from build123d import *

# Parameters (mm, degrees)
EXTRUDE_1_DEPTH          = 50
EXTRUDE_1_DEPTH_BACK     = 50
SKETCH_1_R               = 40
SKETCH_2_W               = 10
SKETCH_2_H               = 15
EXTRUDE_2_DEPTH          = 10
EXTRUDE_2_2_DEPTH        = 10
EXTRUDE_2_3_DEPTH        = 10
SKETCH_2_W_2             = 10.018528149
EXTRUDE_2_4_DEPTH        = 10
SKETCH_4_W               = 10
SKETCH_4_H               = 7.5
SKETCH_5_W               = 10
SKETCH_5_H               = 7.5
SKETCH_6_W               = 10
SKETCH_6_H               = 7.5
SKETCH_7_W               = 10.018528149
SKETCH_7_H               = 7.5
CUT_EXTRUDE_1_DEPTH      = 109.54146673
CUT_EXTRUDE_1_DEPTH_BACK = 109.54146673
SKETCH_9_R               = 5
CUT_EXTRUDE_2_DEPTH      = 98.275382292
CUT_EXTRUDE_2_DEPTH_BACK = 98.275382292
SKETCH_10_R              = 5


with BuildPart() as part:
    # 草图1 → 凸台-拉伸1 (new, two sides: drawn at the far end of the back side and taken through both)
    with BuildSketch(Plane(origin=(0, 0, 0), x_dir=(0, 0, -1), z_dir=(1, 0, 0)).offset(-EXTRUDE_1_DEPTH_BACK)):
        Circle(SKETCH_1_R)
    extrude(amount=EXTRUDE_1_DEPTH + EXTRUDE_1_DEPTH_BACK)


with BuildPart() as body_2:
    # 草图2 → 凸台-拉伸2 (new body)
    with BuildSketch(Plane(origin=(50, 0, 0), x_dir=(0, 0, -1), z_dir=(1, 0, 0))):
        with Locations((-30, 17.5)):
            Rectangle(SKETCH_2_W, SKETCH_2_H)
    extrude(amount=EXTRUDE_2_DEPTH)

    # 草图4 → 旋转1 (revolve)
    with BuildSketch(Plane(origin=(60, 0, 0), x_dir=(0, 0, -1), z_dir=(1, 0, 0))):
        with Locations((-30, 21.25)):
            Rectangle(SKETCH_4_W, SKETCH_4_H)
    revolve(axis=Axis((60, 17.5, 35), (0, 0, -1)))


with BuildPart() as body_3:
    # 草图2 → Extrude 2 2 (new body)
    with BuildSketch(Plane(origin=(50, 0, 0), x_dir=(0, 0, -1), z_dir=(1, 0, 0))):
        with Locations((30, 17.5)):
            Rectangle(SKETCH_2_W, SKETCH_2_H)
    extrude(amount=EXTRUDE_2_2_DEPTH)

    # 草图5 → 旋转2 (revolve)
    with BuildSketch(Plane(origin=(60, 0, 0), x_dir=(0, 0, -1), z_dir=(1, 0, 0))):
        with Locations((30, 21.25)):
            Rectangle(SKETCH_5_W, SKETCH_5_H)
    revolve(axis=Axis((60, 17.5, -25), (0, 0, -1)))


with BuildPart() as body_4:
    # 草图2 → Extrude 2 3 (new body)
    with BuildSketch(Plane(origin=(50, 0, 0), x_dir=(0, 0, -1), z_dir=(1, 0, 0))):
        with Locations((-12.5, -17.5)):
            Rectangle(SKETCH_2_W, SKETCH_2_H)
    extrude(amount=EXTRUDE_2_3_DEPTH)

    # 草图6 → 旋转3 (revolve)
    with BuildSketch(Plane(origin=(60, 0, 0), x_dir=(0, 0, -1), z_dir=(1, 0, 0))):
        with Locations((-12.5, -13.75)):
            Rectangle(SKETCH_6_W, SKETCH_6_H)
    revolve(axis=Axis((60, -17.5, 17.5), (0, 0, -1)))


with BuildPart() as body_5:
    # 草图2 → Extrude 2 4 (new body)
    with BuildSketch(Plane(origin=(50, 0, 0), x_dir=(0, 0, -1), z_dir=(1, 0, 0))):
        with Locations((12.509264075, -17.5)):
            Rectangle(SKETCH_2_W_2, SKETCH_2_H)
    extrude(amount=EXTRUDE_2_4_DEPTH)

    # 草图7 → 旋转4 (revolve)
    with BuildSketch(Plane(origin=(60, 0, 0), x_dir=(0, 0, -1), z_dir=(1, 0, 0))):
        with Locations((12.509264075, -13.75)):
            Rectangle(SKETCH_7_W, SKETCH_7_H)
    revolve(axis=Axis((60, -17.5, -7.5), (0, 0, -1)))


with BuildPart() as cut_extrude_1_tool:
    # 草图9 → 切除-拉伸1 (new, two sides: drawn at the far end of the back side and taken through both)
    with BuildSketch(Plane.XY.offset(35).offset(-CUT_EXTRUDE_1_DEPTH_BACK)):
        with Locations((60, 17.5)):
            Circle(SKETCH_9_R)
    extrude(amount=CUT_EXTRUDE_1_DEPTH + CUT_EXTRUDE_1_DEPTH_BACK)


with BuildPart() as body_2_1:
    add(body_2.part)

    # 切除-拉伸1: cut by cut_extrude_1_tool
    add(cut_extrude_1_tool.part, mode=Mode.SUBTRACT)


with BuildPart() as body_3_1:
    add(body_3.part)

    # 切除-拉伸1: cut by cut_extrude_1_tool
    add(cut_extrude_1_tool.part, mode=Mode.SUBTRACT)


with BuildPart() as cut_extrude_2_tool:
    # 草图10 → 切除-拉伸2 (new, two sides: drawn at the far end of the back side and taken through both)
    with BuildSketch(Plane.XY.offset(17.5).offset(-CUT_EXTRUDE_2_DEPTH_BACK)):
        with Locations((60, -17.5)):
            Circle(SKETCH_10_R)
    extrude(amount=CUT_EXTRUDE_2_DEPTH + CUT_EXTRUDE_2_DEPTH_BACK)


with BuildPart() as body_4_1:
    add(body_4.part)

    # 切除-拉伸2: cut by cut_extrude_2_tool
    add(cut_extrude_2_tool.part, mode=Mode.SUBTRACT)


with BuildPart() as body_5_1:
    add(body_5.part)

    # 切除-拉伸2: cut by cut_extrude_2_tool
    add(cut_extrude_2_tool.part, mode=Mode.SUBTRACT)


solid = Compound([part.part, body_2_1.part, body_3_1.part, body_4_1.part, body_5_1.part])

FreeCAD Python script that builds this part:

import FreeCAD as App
import Part
import Sketcher

V = App.Vector
Q = App.Units.Quantity


def add_polygon(sketch, points):
    """Adds a closed chain of lines whose ends are joined by coincident constraints."""
    first, n = sketch.GeometryCount, len(points)
    for a, b in zip(points, points[1:] + points[:1]):
        sketch.addGeometry(Part.LineSegment(App.Vector(*a, 0), App.Vector(*b, 0)), False)
    for i in range(n):
        sketch.addConstraint(Sketcher.Constraint("Coincident", first + i, 2, first + (i + 1) % n, 1))

doc = App.newDocument("Part")
body = doc.addObject("PartDesign::Body", "Body")

sketch1 = body.newObject("Sketcher::SketchObject", "Sketch")
sketch1.AttachmentSupport = (doc.getObject("YZ_Plane"), [""])
sketch1.MapMode = "FlatFace"
sketch1.addGeometry(Part.Circle(V(0, 0, 0), V(0, 0, 1), 40), False)
sketch1.addConstraint([
    Sketcher.Constraint("Coincident", 0, 3, -1, 1),
    Sketcher.Constraint("Diameter", 0, Q("80 mm")),
])
pad1 = body.newObject("PartDesign::Pad", "Pad")
pad1.Profile = sketch1
pad1.Type = "TwoLengths"
pad1.Length = 50
pad1.Length2 = 50
body2 = doc.addObject("PartDesign::Body", "Body001")

sketch2 = body2.newObject("Sketcher::SketchObject", "Sketch001")
sketch2.AttachmentSupport = (doc.getObject("YZ_Plane001"), [""])
sketch2.MapMode = "FlatFace"
sketch2.AttachmentOffset = App.Placement(V(0, 0, 50), App.Rotation())
add_polygon(sketch2, [(25, 35), (10, 35), (10, 25), (25, 25)])
sketch2.addConstraint([
    Sketcher.Constraint("Horizontal", 0),
    Sketcher.Constraint("Vertical", 1),
    Sketcher.Constraint("Horizontal", 2),
    Sketcher.Constraint("Vertical", 3),
    Sketcher.Constraint("DistanceX", 0, 2, 0, 1, Q("15 mm")),
    Sketcher.Constraint("DistanceY", 1, 2, 1, 1, Q("10 mm")),
    Sketcher.Constraint("DistanceX", -1, 1, 0, 2, Q("10 mm")),
    Sketcher.Constraint("DistanceY", -1, 1, 0, 2, Q("35 mm")),
])
pad2 = body2.newObject("PartDesign::Pad", "Pad001")
pad2.Profile = sketch2
pad2.Length = 10

sketch3 = body2.newObject("Sketcher::SketchObject", "Sketch002")
sketch3.AttachmentSupport = (doc.getObject("YZ_Plane001"), [""])
sketch3.MapMode = "FlatFace"
sketch3.AttachmentOffset = App.Placement(V(0, 0, 60), App.Rotation())
add_polygon(sketch3, [(25, 35), (18, 35), (18, 25), (25, 25)])
sketch3.addGeometry(Part.LineSegment(V(18, 35, 0), V(18, 25, 0)), True)
sketch3.addConstraint([
    Sketcher.Constraint("Horizontal", 0),
    Sketcher.Constraint("Vertical", 1),
    Sketcher.Constraint("Horizontal", 2),
    Sketcher.Constraint("Vertical", 3),
    Sketcher.Constraint("Vertical", 4),
    Sketcher.Constraint("Coincident", 4, 1, 0, 2),
    Sketcher.Constraint("Horizontal", 2, 2, 4, 2),
    Sketcher.Constraint("DistanceY", 1, 2, 1, 1, Q("10 mm")),
    Sketcher.Constraint("DistanceX", 0, 2, 0, 1, Q("7.5 mm")),
    Sketcher.Constraint("DistanceY", -1, 1, 0, 2, Q("35 mm")),
    Sketcher.Constraint("DistanceX", -1, 1, 2, 2, Q("25 mm")),
])
revolution = body2.newObject("PartDesign::Revolution", "Revolution")
revolution.Profile = sketch3
revolution.ReferenceAxis = (sketch3, ["Axis0"])
revolution.Angle = 360
body3 = doc.addObject("PartDesign::Body", "Body002")

sketch4 = body3.newObject("Sketcher::SketchObject", "Sketch003")
sketch4.AttachmentSupport = (doc.getObject("YZ_Plane002"), [""])
sketch4.MapMode = "FlatFace"
sketch4.AttachmentOffset = App.Placement(V(0, 0, 50), App.Rotation())
add_polygon(sketch4, [(25, -25), (10, -25), (10, -35), (25, -35)])
sketch4.addConstraint([
    Sketcher.Constraint("Horizontal", 0),
    Sketcher.Constraint("Vertical", 1),
    Sketcher.Constraint("Horizontal", 2),
    Sketcher.Constraint("Vertical", 3),
    Sketcher.Constraint("DistanceX", 0, 2, 0, 1, Q("15 mm")),
    Sketcher.Constraint("DistanceY", 1, 2, 1, 1, Q("10 mm")),
    Sketcher.Constraint("DistanceX", -1, 1, 0, 2, Q("10 mm")),
    Sketcher.Constraint("DistanceY", 0, 2, -1, 1, Q("25 mm")),
])
pad3 = body3.newObject("PartDesign::Pad", "Pad002")
pad3.Profile = sketch4
pad3.Length = 10

sketch5 = body3.newObject("Sketcher::SketchObject", "Sketch004")
sketch5.AttachmentSupport = (doc.getObject("YZ_Plane002"), [""])
sketch5.MapMode = "FlatFace"
sketch5.AttachmentOffset = App.Placement(V(0, 0, 60), App.Rotation())
add_polygon(sketch5, [(25, -25), (18, -25), (18, -35), (25, -35)])
sketch5.addGeometry(Part.LineSegment(V(18, -25, 0), V(18, -35, 0)), True)
sketch5.addConstraint([
    Sketcher.Constraint("Horizontal", 0),
    Sketcher.Constraint("Vertical", 1),
    Sketcher.Constraint("Horizontal", 2),
    Sketcher.Constraint("Vertical", 3),
    Sketcher.Constraint("Vertical", 4),
    Sketcher.Constraint("Coincident", 4, 1, 0, 2),
    Sketcher.Constraint("Horizontal", 2, 2, 4, 2),
    Sketcher.Constraint("DistanceY", 1, 2, 1, 1, Q("10 mm")),
    Sketcher.Constraint("DistanceX", 0, 2, 0, 1, Q("7.5 mm")),
    Sketcher.Constraint("DistanceY", 0, 2, -1, 1, Q("25 mm")),
    Sketcher.Constraint("DistanceX", -1, 1, 2, 2, Q("25 mm")),
])
revolution2 = body3.newObject("PartDesign::Revolution", "Revolution001")
revolution2.Profile = sketch5
revolution2.ReferenceAxis = (sketch5, ["Axis0"])
revolution2.Angle = 360
body4 = doc.addObject("PartDesign::Body", "Body003")

sketch6 = body4.newObject("Sketcher::SketchObject", "Sketch005")
sketch6.AttachmentSupport = (doc.getObject("YZ_Plane003"), [""])
sketch6.MapMode = "FlatFace"
sketch6.AttachmentOffset = App.Placement(V(0, 0, 50), App.Rotation())
add_polygon(sketch6, [(-10, 18), (-25, 18), (-25, 8), (-10, 8)])
sketch6.addConstraint([
    Sketcher.Constraint("Horizontal", 0),
    Sketcher.Constraint("Vertical", 1),
    Sketcher.Constraint("Horizontal", 2),
    Sketcher.Constraint("Vertical", 3),
    Sketcher.Constraint("DistanceX", 0, 2, 0, 1, Q("15 mm")),
    Sketcher.Constraint("DistanceY", 1, 2, 1, 1, Q("10 mm")),
    Sketcher.Constraint("DistanceX", 0, 2, -1, 1, Q("25 mm")),
    Sketcher.Constraint("DistanceY", -1, 1, 0, 2, Q("17.5 mm")),
])
pad4 = body4.newObject("PartDesign::Pad", "Pad003")
pad4.Profile = sketch6
pad4.Length = 10

sketch7 = body4.newObject("Sketcher::SketchObject", "Sketch006")
sketch7.AttachmentSupport = (doc.getObject("YZ_Plane003"), [""])
sketch7.MapMode = "FlatFace"
sketch7.AttachmentOffset = App.Placement(V(0, 0, 60), App.Rotation())
add_polygon(sketch7, [(-10, 18), (-18, 18), (-18, 8), (-10, 8)])
sketch7.addGeometry(Part.LineSegment(V(-18, 18, 0), V(-18, 8, 0)), True)
sketch7.addConstraint([
    Sketcher.Constraint("Horizontal", 0),
    Sketcher.Constraint("Vertical", 1),
    Sketcher.Constraint("Horizontal", 2),
    Sketcher.Constraint("Vertical", 3),
    Sketcher.Constraint("Vertical", 4),
    Sketcher.Constraint("Coincident", 4, 1, 0, 2),
    Sketcher.Constraint("Horizontal", 2, 2, 4, 2),
    Sketcher.Constraint("DistanceY", 1, 2, 1, 1, Q("10 mm")),
    Sketcher.Constraint("DistanceX", 0, 2, 0, 1, Q("7.5 mm")),
    Sketcher.Constraint("DistanceX", 2, 2, -1, 1, Q("10 mm")),
    Sketcher.Constraint("DistanceY", -1, 1, 0, 2, Q("17.5 mm")),
])
revolution3 = body4.newObject("PartDesign::Revolution", "Revolution002")
revolution3.Profile = sketch7
revolution3.ReferenceAxis = (sketch7, ["Axis0"])
revolution3.Angle = 360
body5 = doc.addObject("PartDesign::Body", "Body004")

sketch8 = body5.newObject("Sketcher::SketchObject", "Sketch007")
sketch8.AttachmentSupport = (doc.getObject("YZ_Plane004"), [""])
sketch8.MapMode = "FlatFace"
sketch8.AttachmentOffset = App.Placement(V(0, 0, 50), App.Rotation())
add_polygon(sketch8, [(-10, -8), (-25, -8), (-25, -18), (-10, -18)])
sketch8.addConstraint([
    Sketcher.Constraint("Horizontal", 0),
    Sketcher.Constraint("Vertical", 1),
    Sketcher.Constraint("Horizontal", 2),
    Sketcher.Constraint("Vertical", 3),
    Sketcher.Constraint("DistanceX", 0, 2, 0, 1, Q("15 mm")),
    Sketcher.Constraint("DistanceX", 0, 2, -1, 1, Q("25 mm")),
    Sketcher.Constraint("DistanceY", 0, 2, -1, 1, Q("7.5 mm")),
    Sketcher.Constraint("DistanceY", 1, 2, 1, 1, Q("10.018528 mm")),
])
pad5 = body5.newObject("PartDesign::Pad", "Pad004")
pad5.Profile = sketch8
pad5.Length = 10

sketch9 = body5.newObject("Sketcher::SketchObject", "Sketch008")
sketch9.AttachmentSupport = (doc.getObject("YZ_Plane004"), [""])
sketch9.MapMode = "FlatFace"
sketch9.AttachmentOffset = App.Placement(V(0, 0, 60), App.Rotation())
add_polygon(sketch9, [(-10, -8), (-18, -8), (-18, -18), (-10, -18)])
sketch9.addGeometry(Part.LineSegment(V(-18, -8, 0), V(-18, -18, 0)), True)
sketch9.addConstraint([
    Sketcher.Constraint("Horizontal", 0),
    Sketcher.Constraint("Vertical", 1),
    Sketcher.Constraint("Horizontal", 2),
    Sketcher.Constraint("Vertical", 3),
    Sketcher.Constraint("Vertical", 4),
    Sketcher.Constraint("Coincident", 4, 1, 0, 2),
    Sketcher.Constraint("Horizontal", 2, 2, 4, 2),
    Sketcher.Constraint("DistanceX", 0, 2, 0, 1, Q("7.5 mm")),
    Sketcher.Constraint("DistanceX", 2, 2, -1, 1, Q("10 mm")),
    Sketcher.Constraint("DistanceY", 0, 2, -1, 1, Q("7.5 mm")),
    Sketcher.Constraint("DistanceY", 1, 2, 1, 1, Q("10.018528 mm")),
])
revolution4 = body5.newObject("PartDesign::Revolution", "Revolution003")
revolution4.Profile = sketch9
revolution4.ReferenceAxis = (sketch9, ["Axis0"])
revolution4.Angle = 360
body6 = doc.addObject("PartDesign::Body", "Body005")

sketch10 = body6.newObject("Sketcher::SketchObject", "Sketch009")
sketch10.AttachmentSupport = (doc.getObject("XY_Plane005"), [""])
sketch10.MapMode = "FlatFace"
sketch10.AttachmentOffset = App.Placement(V(0, 0, 35), App.Rotation())
sketch10.addGeometry(Part.Circle(V(60, 18, 0), V(0, 0, 1), 5), False)
sketch10.addConstraint([
    Sketcher.Constraint("Diameter", 0, Q("10 mm")),
    Sketcher.Constraint("DistanceX", -1, 1, 0, 3, Q("60 mm")),
    Sketcher.Constraint("DistanceY", -1, 1, 0, 3, Q("17.5 mm")),
])
pad6 = body6.newObject("PartDesign::Pad", "Pad005")
pad6.Profile = sketch10
pad6.Type = "TwoLengths"
pad6.Length = 109.541467
pad6.Length2 = 109.541467
doc.recompute()

body7 = doc.addObject("PartDesign::Body", "Body006")
body7.BaseFeature = body6
boolean = body2.newObject("PartDesign::Boolean", "Boolean")
boolean.Type = "Cut"
boolean.addObjects([body7])
doc.recompute()

boolean2 = body3.newObject("PartDesign::Boolean", "Boolean001")
boolean2.Type = "Cut"
boolean2.addObjects([body6])
body8 = doc.addObject("PartDesign::Body", "Body007")

sketch11 = body8.newObject("Sketcher::SketchObject", "Sketch010")
sketch11.AttachmentSupport = (doc.getObject("XY_Plane007"), [""])
sketch11.MapMode = "FlatFace"
sketch11.AttachmentOffset = App.Placement(V(0, 0, 17.5), App.Rotation())
sketch11.addGeometry(Part.Circle(V(60, -18, 0), V(0, 0, 1), 5), False)
sketch11.addConstraint([
    Sketcher.Constraint("Diameter", 0, Q("10 mm")),
    Sketcher.Constraint("DistanceX", -1, 1, 0, 3, Q("60 mm")),
    Sketcher.Constraint("DistanceY", 0, 3, -1, 1, Q("17.5 mm")),
])
pad7 = body8.newObject("PartDesign::Pad", "Pad006")
pad7.Profile = sketch11
pad7.Type = "TwoLengths"
pad7.Length = 98.275382
pad7.Length2 = 98.275382
doc.recompute()

body9 = doc.addObject("PartDesign::Body", "Body008")
body9.BaseFeature = body8
boolean3 = body4.newObject("PartDesign::Boolean", "Boolean002")
boolean3.Type = "Cut"
boolean3.addObjects([body9])
doc.recompute()

boolean4 = body5.newObject("PartDesign::Boolean", "Boolean003")
boolean4.Type = "Cut"
boolean4.addObjects([body8])

doc.recompute()
